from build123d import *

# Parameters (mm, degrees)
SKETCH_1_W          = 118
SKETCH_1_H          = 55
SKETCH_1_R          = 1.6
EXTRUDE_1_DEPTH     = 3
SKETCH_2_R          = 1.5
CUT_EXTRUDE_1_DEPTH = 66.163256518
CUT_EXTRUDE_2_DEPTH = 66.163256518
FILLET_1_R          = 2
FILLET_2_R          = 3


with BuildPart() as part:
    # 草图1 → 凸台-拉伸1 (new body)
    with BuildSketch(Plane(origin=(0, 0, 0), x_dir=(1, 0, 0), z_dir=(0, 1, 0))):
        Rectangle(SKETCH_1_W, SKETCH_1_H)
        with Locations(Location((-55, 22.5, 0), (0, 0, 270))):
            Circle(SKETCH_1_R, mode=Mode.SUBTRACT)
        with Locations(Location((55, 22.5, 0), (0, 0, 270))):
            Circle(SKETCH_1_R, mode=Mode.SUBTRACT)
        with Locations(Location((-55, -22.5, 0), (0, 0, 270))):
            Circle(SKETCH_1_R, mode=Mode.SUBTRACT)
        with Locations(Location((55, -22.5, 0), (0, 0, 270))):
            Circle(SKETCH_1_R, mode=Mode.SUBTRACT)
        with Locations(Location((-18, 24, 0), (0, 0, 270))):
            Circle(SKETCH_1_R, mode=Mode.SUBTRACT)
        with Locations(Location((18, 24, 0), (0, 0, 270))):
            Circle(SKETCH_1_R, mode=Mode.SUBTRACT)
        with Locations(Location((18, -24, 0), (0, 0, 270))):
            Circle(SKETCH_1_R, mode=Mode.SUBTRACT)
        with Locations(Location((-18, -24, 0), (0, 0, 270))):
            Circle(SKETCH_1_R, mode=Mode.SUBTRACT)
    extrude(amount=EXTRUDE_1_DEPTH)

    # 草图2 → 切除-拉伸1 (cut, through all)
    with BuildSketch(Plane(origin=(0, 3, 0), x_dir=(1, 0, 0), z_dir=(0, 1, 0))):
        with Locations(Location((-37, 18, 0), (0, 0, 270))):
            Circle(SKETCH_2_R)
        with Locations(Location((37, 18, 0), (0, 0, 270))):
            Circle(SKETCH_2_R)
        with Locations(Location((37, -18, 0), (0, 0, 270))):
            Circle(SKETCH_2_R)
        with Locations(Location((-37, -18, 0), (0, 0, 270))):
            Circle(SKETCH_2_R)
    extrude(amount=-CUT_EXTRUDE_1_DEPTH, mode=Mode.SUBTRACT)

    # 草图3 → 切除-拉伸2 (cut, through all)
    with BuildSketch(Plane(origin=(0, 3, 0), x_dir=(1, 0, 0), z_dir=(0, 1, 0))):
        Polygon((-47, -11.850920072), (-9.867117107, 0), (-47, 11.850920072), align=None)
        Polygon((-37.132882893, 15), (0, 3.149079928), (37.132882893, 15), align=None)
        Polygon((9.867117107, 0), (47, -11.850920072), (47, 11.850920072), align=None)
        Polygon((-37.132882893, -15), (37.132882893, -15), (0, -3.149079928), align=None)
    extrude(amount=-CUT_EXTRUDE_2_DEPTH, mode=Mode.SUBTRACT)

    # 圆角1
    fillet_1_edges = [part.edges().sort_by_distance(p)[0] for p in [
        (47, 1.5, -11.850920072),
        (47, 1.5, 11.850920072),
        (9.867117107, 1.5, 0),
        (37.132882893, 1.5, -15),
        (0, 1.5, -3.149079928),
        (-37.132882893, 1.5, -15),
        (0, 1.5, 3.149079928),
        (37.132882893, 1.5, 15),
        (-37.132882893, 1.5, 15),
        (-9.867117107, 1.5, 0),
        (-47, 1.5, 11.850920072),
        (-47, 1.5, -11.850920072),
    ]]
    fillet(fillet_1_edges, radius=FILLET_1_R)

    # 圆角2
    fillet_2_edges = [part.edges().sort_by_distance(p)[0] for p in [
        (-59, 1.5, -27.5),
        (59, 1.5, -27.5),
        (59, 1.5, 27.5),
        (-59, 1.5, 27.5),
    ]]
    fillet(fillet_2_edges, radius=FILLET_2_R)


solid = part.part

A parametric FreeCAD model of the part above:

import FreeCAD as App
import Part
import Sketcher
Q = App.Units.Quantity


def edges_at(feature, points):
    """Names of the edges that pass closest to the given points."""
    edges = feature.Shape.Edges
    near = lambda p: min(range(len(edges)), key=lambda i: edges[i].distToShape(Part.Vertex(*p))[0])
    return sorted({f"Edge{near(p) + 1}" for p in points})


def add_polygon(sketch, points):
    """Adds a closed chain of lines whose ends are joined by coincident constraints."""
    first, n = sketch.GeometryCount, len(points)
    for a, b in zip(points, points[1:] + points[:1]):
        sketch.addGeometry(Part.LineSegment(App.Vector(*a, 0), App.Vector(*b, 0)), False)
    for i in range(n):
        sketch.addConstraint(Sketcher.Constraint("Coincident", first + i, 2, first + (i + 1) % n, 1))

doc = App.newDocument("Part")
params = doc.addObject("Spreadsheet::Sheet", "Params")
for row, (alias, value) in enumerate([
    ("sketch1_diameter", "3.2 mm"),
    ("sketch1_width", "118 mm"),
    ("sketch1_height", "55 mm"),
    ("pad1_length", "3 mm"),
    ("sketch2_diameter", "3 mm"),
    ("fillet_radius", "2 mm"),
    ("fillet2_radius", "3 mm"),
], start=1):
    params.set(f"A{row}", alias)
    params.set(f"B{row}", "=" + value)
    params.setAlias(f"B{row}", alias)

body = doc.addObject("PartDesign::Body", "Body")

sketch1 = doc.addObject("Sketcher::SketchObject", "Sketch")
body.addObject(sketch1)
sketch1.AttachmentSupport = (doc.XZ_Plane, [""])
sketch1.MapMode = "FlatFace"
add_polygon(sketch1, [(-59, -27.5), (-59, 27.5), (59, 27.5), (59, -27.5)])
sketch1.addGeometry(Part.Circle(App.Vector(-55, 22.5, 0), App.Vector(0, 0, 1), 1.6), False)
sketch1.addGeometry(Part.Circle(App.Vector(-18, 24, 0), App.Vector(0, 0, 1), 1.6), False)
sketch1.addGeometry(Part.Circle(App.Vector(18, 24, 0), App.Vector(0, 0, 1), 1.6), False)
sketch1.addGeometry(Part.Circle(App.Vector(55, 22.5, 0), App.Vector(0, 0, 1), 1.6), False)
sketch1.addGeometry(Part.Circle(App.Vector(-55, -22.5, 0), App.Vector(0, 0, 1), 1.6), False)
sketch1.addGeometry(Part.Circle(App.Vector(-18, -24, 0), App.Vector(0, 0, 1), 1.6), False)
sketch1.addGeometry(Part.Circle(App.Vector(18, -24, 0), App.Vector(0, 0, 1), 1.6), False)
sketch1.addGeometry(Part.Circle(App.Vector(55, -22.5, 0), App.Vector(0, 0, 1), 1.6), False)
sketch1.addConstraint([
    Sketcher.Constraint("Vertical", 0),
    Sketcher.Constraint("Horizontal", 1),
    Sketcher.Constraint("Vertical", 2),
    Sketcher.Constraint("Horizontal", 3),
    Sketcher.Constraint("Equal", 4, 5),
    Sketcher.Constraint("Equal", 5, 6),
    Sketcher.Constraint("Equal", 6, 7),
    Sketcher.Constraint("Equal", 7, 8),
    Sketcher.Constraint("Equal", 8, 9),
    Sketcher.Constraint("Equal", 9, 10),
    Sketcher.Constraint("Equal", 10, 11),
    Sketcher.Constraint("Symmetric", 7, 3, 8, 3, -1, 1),
    Sketcher.Constraint("Symmetric", 6, 3, 9, 3, -1, 1),
    Sketcher.Constraint("Symmetric", 5, 3, 10, 3, -1, 1),
    Sketcher.Constraint("Symmetric", 4, 3, 11, 3, -1, 1),
    Sketcher.Constraint("Symmetric", 0, 2, 2, 2, -1, 1),
    Sketcher.Constraint("Symmetric", 5, 3, 6, 3, -2),
    Sketcher.Constraint("Symmetric", 4, 3, 7, 3, -2),
    Sketcher.Constraint("Diameter", 4, Q("3.2 mm")),
    Sketcher.Constraint("DistanceX", 1, 1, 1, 2, Q("118 mm")),
    Sketcher.Constraint("DistanceY", 0, 1, 0, 2, Q("55 mm")),
    Sketcher.Constraint("DistanceX", 4, 3, -1, 1, Q("55 mm")),
    Sketcher.Constraint("DistanceX", 5, 3, -1, 1, Q("18 mm")),
    Sketcher.Constraint("DistanceY", -1, 1, 5, 3, Q("24 mm")),
    Sketcher.Constraint("DistanceY", 8, 3, 4, 3, Q("45 mm")),
])
sketch1.setExpression("Constraints[22]", "Params.sketch1_diameter")
sketch1.setExpression("Constraints[23]", "Params.sketch1_width")
sketch1.setExpression("Constraints[24]", "Params.sketch1_height")
pad1 = doc.addObject("PartDesign::Pad", "Pad")
body.addObject(pad1)
pad1.Profile = sketch1
pad1.setExpression("Length", "Params.pad1_length")
pad1.Reversed = True

sketch2 = doc.addObject("Sketcher::SketchObject", "Sketch001")
body.addObject(sketch2)
sketch2.AttachmentSupport = (doc.XZ_Plane, [""])
sketch2.MapMode = "FlatFace"
sketch2.AttachmentOffset = App.Placement(App.Vector(0, 0, -3), App.Rotation())
sketch2.addGeometry([
    Part.Circle(App.Vector(-37, -18, 0), App.Vector(0, 0, 1), 1.5),
    Part.Circle(App.Vector(37, -18, 0), App.Vector(0, 0, 1), 1.5),
    Part.Circle(App.Vector(37, 18, 0), App.Vector(0, 0, 1), 1.5),
    Part.Circle(App.Vector(-37, 18, 0), App.Vector(0, 0, 1), 1.5),
], False)
sketch2.addConstraint([
    Sketcher.Constraint("Equal", 0, 1),
    Sketcher.Constraint("Equal", 1, 2),
    Sketcher.Constraint("Equal", 2, 3),
    Sketcher.Constraint("Symmetric", 0, 3, 2, 3, -1, 1),
    Sketcher.Constraint("Symmetric", 1, 3, 3, 3, -1, 1),
    Sketcher.Constraint("Symmetric", 0, 3, 1, 3, -2),
    Sketcher.Constraint("Diameter", 0, Q("3 mm")),
    Sketcher.Constraint("DistanceX", 0, 3, -1, 1, Q("37 mm")),
    Sketcher.Constraint("DistanceY", 0, 3, -1, 1, Q("18 mm")),
])
sketch2.setExpression("Constraints[6]", "Params.sketch2_diameter")
pocket1 = doc.addObject("PartDesign::Pocket", "Pocket")
body.addObject(pocket1)
pocket1.Profile = sketch2
pocket1.Type = "ThroughAll"
pocket1.Reversed = True

sketch3 = doc.addObject("Sketcher::SketchObject", "Sketch002")
body.addObject(sketch3)
sketch3.AttachmentSupport = (doc.XZ_Plane, [""])
sketch3.MapMode = "FlatFace"
sketch3.AttachmentOffset = App.Placement(App.Vector(0, 0, -3), App.Rotation())
add_polygon(sketch3, [(-47, 12), (-10, 0), (-47, -12)])
add_polygon(sketch3, [(-37, -15), (0, -3), (37, -15)])
add_polygon(sketch3, [(10, 0), (47, 12), (47, -12)])
add_polygon(sketch3, [(-37, 15), (37, 15), (0, 3)])
sketch3.addConstraint([
    Sketcher.Constraint("Vertical", 2),
    Sketcher.Constraint("Horizontal", 5),
    Sketcher.Constraint("Vertical", 7),
    Sketcher.Constraint("Horizontal", 9),
    Sketcher.Constraint("Symmetric", 1, 2, 6, 2, -1, 1),
    Sketcher.Constraint("Symmetric", 0, 2, 8, 2, -1, 1),
    Sketcher.Constraint("Symmetric", 5, 2, 9, 2, -1, 1),
    Sketcher.Constraint("Symmetric", 3, 2, 10, 2, -1, 1),
    Sketcher.Constraint("PointOnObject", 0, 2, -1),
    Sketcher.Constraint("PointOnObject", 3, 2, -2),
    Sketcher.Constraint("Parallel", 1, 3),
    Sketcher.Constraint("Parallel", 0, 4),
    Sketcher.Constraint("Parallel", 4, 8),
    Sketcher.Constraint("Parallel", 8, 11),
    Sketcher.Constraint("Horizontal", 2, 2, 6, 2),
    Sketcher.Constraint("Equal", 1, 3),
    Sketcher.Constraint("DistanceX", 1, 2, -1, 1, Q("47 mm")),
    Sketcher.Constraint("DistanceY", 4, 2, -1, 1, Q("15 mm")),
    Sketcher.Constraint("DistanceY", 2, 1, 2, 2, Q("23.70184 mm")),
    Sketcher.Constraint("Distance", 0, Q("38.978139 mm")),
])
pocket2 = doc.addObject("PartDesign::Pocket", "Pocket001")
body.addObject(pocket2)
pocket2.Profile = sketch3
pocket2.Type = "ThroughAll"
pocket2.Reversed = True
doc.recompute()

fillet = doc.addObject("PartDesign::Fillet", "Fillet")
body.addObject(fillet)
fillet.Base = (pocket2, edges_at(pocket2, [
    (47, 1.5, -11.851),
    (47, 1.5, 11.851),
    (9.867, 1.5, 0),
    (37.133, 1.5, -15),
    (0, 1.5, -3.149),
    (-37.133, 1.5, -15),
    (0, 1.5, 3.149),
    (37.133, 1.5, 15),
    (-37.133, 1.5, 15),
    (-9.867, 1.5, 0),
    (-47, 1.5, 11.851),
    (-47, 1.5, -11.851),
]))
fillet.setExpression("Radius", "Params.fillet_radius")
doc.recompute()

fillet2 = doc.addObject("PartDesign::Fillet", "Fillet001")
body.addObject(fillet2)
fillet2.Base = (fillet, edges_at(fillet, [
    (-59, 1.5, -27.5),
    (59, 1.5, -27.5),
    (59, 1.5, 27.5),
    (-59, 1.5, 27.5),
]))
fillet2.setExpression("Radius", "Params.fillet2_radius")

doc.recompute()
